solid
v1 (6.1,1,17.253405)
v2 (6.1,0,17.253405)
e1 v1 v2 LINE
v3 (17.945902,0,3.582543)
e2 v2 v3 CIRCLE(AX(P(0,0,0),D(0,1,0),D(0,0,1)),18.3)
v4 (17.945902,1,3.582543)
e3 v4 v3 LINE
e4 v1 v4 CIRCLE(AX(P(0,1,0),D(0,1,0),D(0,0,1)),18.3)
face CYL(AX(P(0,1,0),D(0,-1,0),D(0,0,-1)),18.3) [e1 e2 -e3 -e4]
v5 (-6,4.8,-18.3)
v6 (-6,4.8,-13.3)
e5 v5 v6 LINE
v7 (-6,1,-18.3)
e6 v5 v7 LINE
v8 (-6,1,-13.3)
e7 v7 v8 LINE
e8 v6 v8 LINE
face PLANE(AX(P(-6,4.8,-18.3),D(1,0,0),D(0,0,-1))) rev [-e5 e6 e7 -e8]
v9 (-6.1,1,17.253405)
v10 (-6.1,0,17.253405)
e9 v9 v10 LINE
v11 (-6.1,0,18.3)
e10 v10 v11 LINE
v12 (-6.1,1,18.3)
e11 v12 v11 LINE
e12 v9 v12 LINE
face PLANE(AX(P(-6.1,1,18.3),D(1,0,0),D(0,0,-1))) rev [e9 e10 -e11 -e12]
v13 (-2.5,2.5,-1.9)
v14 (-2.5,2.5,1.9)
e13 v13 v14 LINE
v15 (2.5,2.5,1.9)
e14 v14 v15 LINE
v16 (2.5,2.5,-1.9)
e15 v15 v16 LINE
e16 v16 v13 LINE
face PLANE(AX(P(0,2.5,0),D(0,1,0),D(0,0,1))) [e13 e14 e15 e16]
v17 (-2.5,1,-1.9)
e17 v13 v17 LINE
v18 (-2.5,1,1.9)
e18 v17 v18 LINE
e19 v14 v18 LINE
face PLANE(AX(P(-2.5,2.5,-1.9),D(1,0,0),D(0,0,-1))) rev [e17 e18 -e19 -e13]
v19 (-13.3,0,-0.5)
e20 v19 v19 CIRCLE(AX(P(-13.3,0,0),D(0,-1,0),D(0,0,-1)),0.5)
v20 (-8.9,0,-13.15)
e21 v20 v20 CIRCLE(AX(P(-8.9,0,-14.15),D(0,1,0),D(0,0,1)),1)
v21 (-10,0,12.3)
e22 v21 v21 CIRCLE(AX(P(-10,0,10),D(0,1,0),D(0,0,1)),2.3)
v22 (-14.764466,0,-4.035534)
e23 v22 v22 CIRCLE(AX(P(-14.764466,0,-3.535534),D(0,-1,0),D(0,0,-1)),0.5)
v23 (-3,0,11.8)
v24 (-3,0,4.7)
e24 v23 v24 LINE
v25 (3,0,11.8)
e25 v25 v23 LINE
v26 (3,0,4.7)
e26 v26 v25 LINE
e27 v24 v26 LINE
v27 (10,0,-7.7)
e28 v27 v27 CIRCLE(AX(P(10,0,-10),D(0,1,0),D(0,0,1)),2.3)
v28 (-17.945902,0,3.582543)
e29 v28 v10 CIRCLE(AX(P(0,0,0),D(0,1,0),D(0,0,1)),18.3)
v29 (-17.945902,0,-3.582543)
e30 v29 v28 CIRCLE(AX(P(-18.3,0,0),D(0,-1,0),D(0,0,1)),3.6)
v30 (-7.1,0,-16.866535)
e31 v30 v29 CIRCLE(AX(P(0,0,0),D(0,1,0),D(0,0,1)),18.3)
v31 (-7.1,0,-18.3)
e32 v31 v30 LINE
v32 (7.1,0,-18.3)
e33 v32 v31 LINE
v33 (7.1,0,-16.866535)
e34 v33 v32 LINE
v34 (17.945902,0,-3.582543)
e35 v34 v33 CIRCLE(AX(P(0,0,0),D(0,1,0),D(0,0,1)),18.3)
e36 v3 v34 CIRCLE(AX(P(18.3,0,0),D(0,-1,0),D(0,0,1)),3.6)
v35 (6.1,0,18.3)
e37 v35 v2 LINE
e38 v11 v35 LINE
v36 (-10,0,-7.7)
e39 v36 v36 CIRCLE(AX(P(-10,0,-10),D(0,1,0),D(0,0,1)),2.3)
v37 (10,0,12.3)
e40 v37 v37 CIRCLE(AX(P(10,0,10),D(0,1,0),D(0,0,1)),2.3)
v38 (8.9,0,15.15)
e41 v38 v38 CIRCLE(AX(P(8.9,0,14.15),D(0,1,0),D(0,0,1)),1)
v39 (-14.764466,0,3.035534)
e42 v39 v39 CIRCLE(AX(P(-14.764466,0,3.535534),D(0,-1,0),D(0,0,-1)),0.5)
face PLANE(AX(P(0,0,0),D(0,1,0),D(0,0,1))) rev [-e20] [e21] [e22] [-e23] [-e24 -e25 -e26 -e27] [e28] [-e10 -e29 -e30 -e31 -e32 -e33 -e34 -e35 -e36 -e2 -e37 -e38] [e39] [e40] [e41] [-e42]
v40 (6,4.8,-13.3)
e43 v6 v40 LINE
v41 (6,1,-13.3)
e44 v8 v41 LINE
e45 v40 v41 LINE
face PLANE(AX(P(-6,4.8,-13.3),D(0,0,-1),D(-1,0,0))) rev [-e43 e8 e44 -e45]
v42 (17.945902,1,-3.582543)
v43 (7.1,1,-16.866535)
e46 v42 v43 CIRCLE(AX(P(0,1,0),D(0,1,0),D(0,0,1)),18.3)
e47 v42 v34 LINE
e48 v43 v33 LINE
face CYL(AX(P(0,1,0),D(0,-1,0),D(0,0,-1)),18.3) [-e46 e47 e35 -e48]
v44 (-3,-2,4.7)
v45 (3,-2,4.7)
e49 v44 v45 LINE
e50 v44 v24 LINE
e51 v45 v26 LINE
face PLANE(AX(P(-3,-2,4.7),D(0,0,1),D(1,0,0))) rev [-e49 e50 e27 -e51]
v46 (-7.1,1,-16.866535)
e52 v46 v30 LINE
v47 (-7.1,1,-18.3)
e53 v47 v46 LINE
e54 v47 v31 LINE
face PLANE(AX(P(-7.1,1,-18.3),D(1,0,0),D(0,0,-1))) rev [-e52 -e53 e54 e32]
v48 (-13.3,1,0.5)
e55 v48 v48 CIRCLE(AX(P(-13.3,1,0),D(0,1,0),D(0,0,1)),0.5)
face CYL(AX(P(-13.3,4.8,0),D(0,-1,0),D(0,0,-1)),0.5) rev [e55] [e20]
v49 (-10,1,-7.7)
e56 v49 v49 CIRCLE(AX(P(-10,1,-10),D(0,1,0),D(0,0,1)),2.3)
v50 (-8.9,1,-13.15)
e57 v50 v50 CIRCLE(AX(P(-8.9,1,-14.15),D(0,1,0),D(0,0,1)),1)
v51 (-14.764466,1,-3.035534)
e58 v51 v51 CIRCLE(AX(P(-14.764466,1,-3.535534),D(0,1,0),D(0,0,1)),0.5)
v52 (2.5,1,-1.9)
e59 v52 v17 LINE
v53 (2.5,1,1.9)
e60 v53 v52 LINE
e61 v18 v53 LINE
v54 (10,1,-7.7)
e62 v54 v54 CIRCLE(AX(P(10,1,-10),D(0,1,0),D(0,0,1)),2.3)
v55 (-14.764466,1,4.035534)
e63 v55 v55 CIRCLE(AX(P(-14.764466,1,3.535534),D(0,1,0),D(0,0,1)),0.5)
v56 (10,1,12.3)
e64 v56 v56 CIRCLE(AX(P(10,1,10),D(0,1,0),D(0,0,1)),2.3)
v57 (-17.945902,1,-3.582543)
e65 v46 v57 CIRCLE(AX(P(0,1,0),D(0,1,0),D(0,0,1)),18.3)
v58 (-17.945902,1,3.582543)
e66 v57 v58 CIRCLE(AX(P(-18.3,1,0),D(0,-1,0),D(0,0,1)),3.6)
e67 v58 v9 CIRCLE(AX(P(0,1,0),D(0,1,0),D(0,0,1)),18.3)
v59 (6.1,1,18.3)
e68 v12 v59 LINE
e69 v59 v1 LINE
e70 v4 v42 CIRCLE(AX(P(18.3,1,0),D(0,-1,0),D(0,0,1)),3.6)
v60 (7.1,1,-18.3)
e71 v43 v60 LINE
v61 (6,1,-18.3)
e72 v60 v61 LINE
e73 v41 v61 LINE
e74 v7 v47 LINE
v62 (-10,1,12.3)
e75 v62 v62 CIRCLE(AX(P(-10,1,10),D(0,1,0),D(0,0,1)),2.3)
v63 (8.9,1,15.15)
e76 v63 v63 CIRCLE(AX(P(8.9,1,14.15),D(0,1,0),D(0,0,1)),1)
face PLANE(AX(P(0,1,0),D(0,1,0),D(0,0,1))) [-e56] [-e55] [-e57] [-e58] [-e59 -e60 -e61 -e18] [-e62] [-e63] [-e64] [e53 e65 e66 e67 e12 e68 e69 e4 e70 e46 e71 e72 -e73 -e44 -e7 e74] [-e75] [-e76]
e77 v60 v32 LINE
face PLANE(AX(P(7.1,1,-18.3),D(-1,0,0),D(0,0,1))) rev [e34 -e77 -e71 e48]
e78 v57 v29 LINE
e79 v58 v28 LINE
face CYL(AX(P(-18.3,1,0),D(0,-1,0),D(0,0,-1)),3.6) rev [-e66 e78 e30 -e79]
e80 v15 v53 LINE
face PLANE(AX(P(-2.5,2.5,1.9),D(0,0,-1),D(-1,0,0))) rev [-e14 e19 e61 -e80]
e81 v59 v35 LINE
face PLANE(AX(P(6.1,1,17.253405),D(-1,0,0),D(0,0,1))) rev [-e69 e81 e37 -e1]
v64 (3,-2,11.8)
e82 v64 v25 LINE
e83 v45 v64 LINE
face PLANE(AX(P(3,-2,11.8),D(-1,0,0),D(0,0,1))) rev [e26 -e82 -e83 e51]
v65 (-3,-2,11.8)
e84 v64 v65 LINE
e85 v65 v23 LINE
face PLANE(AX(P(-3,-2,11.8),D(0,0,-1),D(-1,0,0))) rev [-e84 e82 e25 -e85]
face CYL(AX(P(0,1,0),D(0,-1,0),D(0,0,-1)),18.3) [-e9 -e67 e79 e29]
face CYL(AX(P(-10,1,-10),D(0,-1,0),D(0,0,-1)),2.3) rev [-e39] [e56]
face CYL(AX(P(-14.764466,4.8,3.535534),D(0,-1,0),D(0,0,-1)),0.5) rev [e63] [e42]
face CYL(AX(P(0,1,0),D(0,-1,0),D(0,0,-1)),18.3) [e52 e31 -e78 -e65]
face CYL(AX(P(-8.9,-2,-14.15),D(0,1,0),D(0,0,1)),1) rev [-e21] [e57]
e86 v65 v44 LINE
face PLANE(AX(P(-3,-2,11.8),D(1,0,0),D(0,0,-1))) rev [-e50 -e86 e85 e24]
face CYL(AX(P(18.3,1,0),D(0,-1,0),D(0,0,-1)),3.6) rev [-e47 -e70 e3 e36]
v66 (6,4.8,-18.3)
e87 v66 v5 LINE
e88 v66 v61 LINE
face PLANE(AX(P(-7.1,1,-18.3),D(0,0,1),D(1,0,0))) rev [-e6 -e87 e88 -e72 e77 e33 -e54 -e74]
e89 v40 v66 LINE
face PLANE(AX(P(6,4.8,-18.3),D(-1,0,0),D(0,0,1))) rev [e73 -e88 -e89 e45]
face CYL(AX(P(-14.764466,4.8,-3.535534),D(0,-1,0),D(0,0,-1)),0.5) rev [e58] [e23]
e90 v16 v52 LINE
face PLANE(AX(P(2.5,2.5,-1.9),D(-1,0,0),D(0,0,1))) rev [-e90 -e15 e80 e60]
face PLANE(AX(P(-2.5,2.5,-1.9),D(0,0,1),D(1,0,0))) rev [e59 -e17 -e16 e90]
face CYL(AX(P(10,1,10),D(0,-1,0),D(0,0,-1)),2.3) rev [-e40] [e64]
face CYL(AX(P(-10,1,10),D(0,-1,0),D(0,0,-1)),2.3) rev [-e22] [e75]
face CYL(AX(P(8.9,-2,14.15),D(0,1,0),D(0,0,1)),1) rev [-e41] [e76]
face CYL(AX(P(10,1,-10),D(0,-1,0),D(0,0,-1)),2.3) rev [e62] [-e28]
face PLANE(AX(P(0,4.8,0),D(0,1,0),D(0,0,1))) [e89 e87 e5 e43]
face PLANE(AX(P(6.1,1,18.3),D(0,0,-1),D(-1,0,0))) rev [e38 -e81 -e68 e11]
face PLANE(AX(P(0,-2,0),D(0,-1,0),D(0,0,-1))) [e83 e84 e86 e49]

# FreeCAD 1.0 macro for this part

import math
import FreeCAD as App
import Part
import Sketcher
from FreeCAD import Vector

doc = App.newDocument("Part")
body = doc.addObject("PartDesign::Body", "Body")

sketch1 = body.newObject("Sketcher::SketchObject", "Sketch")
sketch1.AttachmentSupport = (doc.getObject("XZ_Plane"), [""])
sketch1.MapMode = "FlatFace"
sketch1.addGeometry([
    Part.LineSegment(Vector(-7.1, -18.3, 0), Vector(-7.1, -16.9, 0)),
    Part.ArcOfCircle(Part.Circle(Vector(0, 0, 0), Vector(0, 0, 1), 18.3), math.radians(-169), math.radians(-113)),
    Part.ArcOfCircle(Part.Circle(Vector(-18.3, 0, 0), Vector(0, 0, 1), 3.6), math.radians(-84), math.radians(84)),
    Part.ArcOfCircle(Part.Circle(Vector(0, 0, 0), Vector(0, 0, 1), 18.3), math.radians(109), math.radians(169)),
    Part.LineSegment(Vector(-6.1, 17.3, 0), Vector(-6.1, 18.3, 0)),
    Part.LineSegment(Vector(-6.1, 18.3, 0), Vector(6.1, 18.3, 0)),
    Part.LineSegment(Vector(6.1, 18.3, 0), Vector(6.1, 17.3, 0)),
    Part.ArcOfCircle(Part.Circle(Vector(0, 0, 0), Vector(0, 0, 1), 18.3), math.radians(11), math.radians(71)),
    Part.ArcOfCircle(Part.Circle(Vector(18.3, 0, 0), Vector(0, 0, 1), 3.6), math.radians(96), math.radians(264)),
    Part.ArcOfCircle(Part.Circle(Vector(0, 0, 0), Vector(0, 0, 1), 18.3), math.radians(-67), math.radians(-11)),
    Part.LineSegment(Vector(7.1, -16.9, 0), Vector(7.1, -18.3, 0)),
    Part.LineSegment(Vector(7.1, -18.3, 0), Vector(-7.1, -18.3, 0)),
    Part.Circle(Vector(-10, 10, 0), Vector(0, 0, 1), 2.3),
    Part.Circle(Vector(10, 10, 0), Vector(0, 0, 1), 2.3),
    Part.Circle(Vector(-10, -10, 0), Vector(0, 0, 1), 2.3),
    Part.Circle(Vector(10, -10, 0), Vector(0, 0, 1), 2.3),
], False)
sketch1.addConstraint([
    Sketcher.Constraint("Coincident", 0, 2, 1, 2),
    Sketcher.Constraint("Coincident", 1, 1, 2, 1),
    Sketcher.Constraint("Coincident", 2, 2, 3, 2),
    Sketcher.Constraint("Coincident", 3, 1, 4, 1),
    Sketcher.Constraint("Coincident", 4, 2, 5, 1),
    Sketcher.Constraint("Coincident", 5, 2, 6, 1),
    Sketcher.Constraint("Coincident", 6, 2, 7, 2),
    Sketcher.Constraint("Coincident", 7, 1, 8, 1),
    Sketcher.Constraint("Coincident", 8, 2, 9, 2),
    Sketcher.Constraint("Coincident", 9, 1, 10, 1),
    Sketcher.Constraint("Coincident", 10, 2, 11, 1),
    Sketcher.Constraint("Coincident", 11, 2, 0, 1),
    Sketcher.Constraint("Vertical", 0),
    Sketcher.Constraint("Vertical", 4),
    Sketcher.Constraint("Horizontal", 5),
    Sketcher.Constraint("Vertical", 6),
    Sketcher.Constraint("Vertical", 10),
    Sketcher.Constraint("Horizontal", 11),
    Sketcher.Constraint("Coincident", 1, 3, -1, 1),
    Sketcher.Constraint("Coincident", 3, 3, -1, 1),
    Sketcher.Constraint("Coincident", 7, 3, -1, 1),
    Sketcher.Constraint("Coincident", 9, 3, -1, 1),
    Sketcher.Constraint("Equal", 1, 3),
    Sketcher.Constraint("Equal", 3, 7),
    Sketcher.Constraint("Equal", 2, 8),
    Sketcher.Constraint("Equal", 7, 9),
    Sketcher.Constraint("Equal", 12, 13),
    Sketcher.Constraint("Equal", 13, 14),
    Sketcher.Constraint("Equal", 14, 15),
    Sketcher.Constraint("Symmetric", 2, 3, 8, 3, -1, 1),
    Sketcher.Constraint("Symmetric", 13, 3, 14, 3, -1, 1),
    Sketcher.Constraint("Symmetric", 12, 3, 15, 3, -1, 1),
    Sketcher.Constraint("Symmetric", 12, 3, 13, 3, -2),
    Sketcher.Constraint("PointOnObject", 2, 3, -1),
    Sketcher.Constraint("Horizontal", 3, 1, 6, 2),
    Sketcher.Constraint("Horizontal", 0, 2, 9, 1),
    Sketcher.Constraint("Diameter", 12, 4.6),
    Sketcher.Constraint("Radius", 1, 18.3),
    Sketcher.Constraint("Radius", 2, 3.6),
    Sketcher.Constraint("DistanceX", 5, 1, 5, 2, 12.2),
    Sketcher.Constraint("DistanceX", 11, 2, 11, 1, 14.2),
    Sketcher.Constraint("DistanceX", 12, 3, -1, 1, 10.0),
    Sketcher.Constraint("DistanceY", -1, 1, 12, 3, 10.0),
    Sketcher.Constraint("DistanceX", 2, 3, -1, 1, 18.3),
    Sketcher.Constraint("DistanceY", -1, 1, 4, 2, 18.3),
    Sketcher.Constraint("DistanceY", 10, 2, -1, 1, 18.3),
])
pad1 = body.newObject("PartDesign::Pad", "Pad")
pad1.Profile = sketch1
pad1.Length = 1
pad1.Reversed = True

sketch2 = body.newObject("Sketcher::SketchObject", "Sketch001")
sketch2.AttachmentSupport = (doc.getObject("XZ_Plane"), [""])
sketch2.MapMode = "FlatFace"
sketch2.AttachmentOffset = App.Placement(Vector(0, 0, -1), App.Rotation())
sketch2.addGeometry([
    Part.LineSegment(Vector(-6, -18, 0), Vector(-6, -13, 0)),
    Part.LineSegment(Vector(-6, -13, 0), Vector(6, -13, 0)),
    Part.LineSegment(Vector(6, -13, 0), Vector(6, -18, 0)),
    Part.LineSegment(Vector(6, -18, 0), Vector(-6, -18, 0)),
], False)
sketch2.addConstraint([
    Sketcher.Constraint("Coincident", 0, 2, 1, 1),
    Sketcher.Constraint("Coincident", 1, 2, 2, 1),
    Sketcher.Constraint("Coincident", 2, 2, 3, 1),
    Sketcher.Constraint("Coincident", 3, 2, 0, 1),
    Sketcher.Constraint("Vertical", 0),
    Sketcher.Constraint("Horizontal", 1),
    Sketcher.Constraint("Vertical", 2),
    Sketcher.Constraint("Horizontal", 3),
    Sketcher.Constraint("DistanceX", 1, 1, 1, 2, 12.0),
    Sketcher.Constraint("DistanceY", 0, 1, 0, 2, 5.0),
    Sketcher.Constraint("DistanceX", 0, 2, -1, 1, 6.0),
    Sketcher.Constraint("DistanceY", 0, 2, -1, 1, 13.3),
])
pad2 = body.newObject("PartDesign::Pad", "Pad001")
pad2.Profile = sketch2
pad2.Length = 3.8
pad2.Reversed = True

sketch3 = body.newObject("Sketcher::SketchObject", "Sketch002")
sketch3.AttachmentSupport = (doc.getObject("XZ_Plane"), [""])
sketch3.MapMode = "FlatFace"
sketch3.AttachmentOffset = App.Placement(Vector(0, 0, -1), App.Rotation())
sketch3.addGeometry([
    Part.LineSegment(Vector(-2.5, -1.9, 0), Vector(-2.5, 1.9, 0)),
    Part.LineSegment(Vector(-2.5, 1.9, 0), Vector(2.5, 1.9, 0)),
    Part.LineSegment(Vector(2.5, 1.9, 0), Vector(2.5, -1.9, 0)),
    Part.LineSegment(Vector(2.5, -1.9, 0), Vector(-2.5, -1.9, 0)),
], False)
sketch3.addConstraint([
    Sketcher.Constraint("Coincident", 0, 2, 1, 1),
    Sketcher.Constraint("Coincident", 1, 2, 2, 1),
    Sketcher.Constraint("Coincident", 2, 2, 3, 1),
    Sketcher.Constraint("Coincident", 3, 2, 0, 1),
    Sketcher.Constraint("Vertical", 0),
    Sketcher.Constraint("Horizontal", 1),
    Sketcher.Constraint("Vertical", 2),
    Sketcher.Constraint("Horizontal", 3),
    Sketcher.Constraint("Symmetric", 0, 2, 2, 2, -1, 1),
    Sketcher.Constraint("DistanceX", 1, 1, 1, 2, 5.0),
    Sketcher.Constraint("DistanceY", 0, 1, 0, 2, 3.8),
])
pad3 = body.newObject("PartDesign::Pad", "Pad002")
pad3.Profile = sketch3
pad3.Length = 1.5
pad3.Reversed = True

sketch4 = body.newObject("Sketcher::SketchObject", "Sketch003")
sketch4.AttachmentSupport = (doc.getObject("XZ_Plane"), [""])
sketch4.MapMode = "FlatFace"
sketch4.addGeometry([
    Part.LineSegment(Vector(-3, 12, 0), Vector(-3, 5, 0)),
    Part.LineSegment(Vector(-3, 5, 0), Vector(3, 5, 0)),
    Part.LineSegment(Vector(3, 5, 0), Vector(3, 12, 0)),
    Part.LineSegment(Vector(3, 12, 0), Vector(-3, 12, 0)),
], False)
sketch4.addConstraint([
    Sketcher.Constraint("Coincident", 0, 2, 1, 1),
    Sketcher.Constraint("Coincident", 1, 2, 2, 1),
    Sketcher.Constraint("Coincident", 2, 2, 3, 1),
    Sketcher.Constraint("Coincident", 3, 2, 0, 1),
    Sketcher.Constraint("Vertical", 0),
    Sketcher.Constraint("Horizontal", 1),
    Sketcher.Constraint("Vertical", 2),
    Sketcher.Constraint("Horizontal", 3),
    Sketcher.Constraint("DistanceX", 1, 1, 1, 2, 6.0),
    Sketcher.Constraint("DistanceY", 0, 2, 0, 1, 7.1),
    Sketcher.Constraint("DistanceX", 0, 2, -1, 1, 3.0),
    Sketcher.Constraint("DistanceY", -1, 1, 0, 2, 4.7),
])
pad4 = body.newObject("PartDesign::Pad", "Pad003")
pad4.Profile = sketch4
pad4.Length = 2

sketch5 = body.newObject("Sketcher::SketchObject", "Sketch004")
sketch5.AttachmentSupport = (doc.getObject("XZ_Plane"), [""])
sketch5.MapMode = "FlatFace"
sketch5.AttachmentOffset = App.Placement(Vector(0, 0, -1), App.Rotation())
sketch5.addGeometry([
    Part.Circle(Vector(-8.9, -14.2, 0), Vector(0, 0, 1), 1),
    Part.Circle(Vector(8.9, 14.2, 0), Vector(0, 0, 1), 1),
], False)
sketch5.addConstraint([
    Sketcher.Constraint("Equal", 0, 1),
    Sketcher.Constraint("Symmetric", 0, 3, 1, 3, -1, 1),
    Sketcher.Constraint("Diameter", 0, 2.0),
    Sketcher.Constraint("DistanceX", 0, 3, -1, 1, 8.9),
    Sketcher.Constraint("DistanceY", 0, 3, 1, 3, 28.3),
])
pocket1 = body.newObject("PartDesign::Pocket", "Pocket")
pocket1.Profile = sketch5
pocket1.Type = "ThroughAll"
pocket1.Midplane = True

sketch6 = body.newObject("Sketcher::SketchObject", "Sketch005")
sketch6.AttachmentSupport = (doc.getObject("XZ_Plane"), [""])
sketch6.MapMode = "FlatFace"
sketch6.addGeometry([
    Part.Circle(Vector(-13.3, 0, 0), Vector(0, 0, 1), 0.5),
    Part.Circle(Vector(-14.8, 3.5, 0), Vector(0, 0, 1), 0.5),
    Part.Circle(Vector(-14.8, -3.5, 0), Vector(0, 0, 1), 0.5),
], False)
sketch6.addConstraint([
    Sketcher.Constraint("Equal", 0, 1),
    Sketcher.Constraint("Equal", 1, 2),
    Sketcher.Constraint("Symmetric", 1, 3, 2, 3, -1),
    Sketcher.Constraint("PointOnObject", 0, 3, -1),
    Sketcher.Constraint("Diameter", 0, 1.0),
    Sketcher.Constraint("DistanceX", 0, 3, -1, 1, 13.3),
    Sketcher.Constraint("DistanceX", 1, 3, -1, 1, 14.764466),
    Sketcher.Constraint("DistanceY", -1, 1, 1, 3, 3.535534),
])
pocket2 = body.newObject("PartDesign::Pocket", "Pocket001")
pocket2.Profile = sketch6
pocket2.Type = "ThroughAll"

doc.recompute()
